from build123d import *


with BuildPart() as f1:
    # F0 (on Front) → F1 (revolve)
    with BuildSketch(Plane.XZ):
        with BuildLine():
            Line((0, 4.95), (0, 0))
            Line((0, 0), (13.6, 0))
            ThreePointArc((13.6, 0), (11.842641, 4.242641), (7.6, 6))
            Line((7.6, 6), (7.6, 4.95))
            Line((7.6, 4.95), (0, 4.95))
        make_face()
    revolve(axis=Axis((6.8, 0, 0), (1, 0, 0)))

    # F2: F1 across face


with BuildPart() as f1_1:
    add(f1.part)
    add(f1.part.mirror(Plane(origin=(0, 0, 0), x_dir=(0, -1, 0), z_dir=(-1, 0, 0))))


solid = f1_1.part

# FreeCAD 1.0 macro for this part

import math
import FreeCAD as App
import Part
import Sketcher

doc = App.newDocument("Part")
params = doc.addObject("Spreadsheet::Sheet", "Params")
for row, (alias, value) in enumerate([
    ("sketch1_radius", "5.999999 mm"),
    ("sketch1_width", "13.6 mm"),
    ("sketch1_width2", "7.6 mm"),
    ("sketch1_height", "4.95 mm"),
    ("revolution_angle", "360 deg"),
], start=1):
    params.set(f"A{row}", alias)
    params.set(f"B{row}", "=" + value)
    params.setAlias(f"B{row}", alias)

body = doc.addObject("PartDesign::Body", "Body")

sketch1 = body.newObject("Sketcher::SketchObject", "Sketch")
sketch1.AttachmentSupport = (doc.getObject("XZ_Plane"), [""])
sketch1.MapMode = "FlatFace"
sketch1.addGeometry([
    Part.LineSegment(App.Vector(0, 5, 0), App.Vector(0, 0, 0)),
    Part.LineSegment(App.Vector(0, 0, 0), App.Vector(13.6, 0, 0)),
    Part.ArcOfCircle(Part.Circle(App.Vector(7.6, 0, 0), App.Vector(0, 0, 1), 6), math.radians(0), math.radians(90)),
    Part.LineSegment(App.Vector(7.6, 6, 0), App.Vector(7.6, 5, 0)),
    Part.LineSegment(App.Vector(7.6, 5, 0), App.Vector(0, 5, 0)),
], False)
sketch1.addConstraint([
    Sketcher.Constraint("Coincident", 0, 2, 1, 1),
    Sketcher.Constraint("Coincident", 1, 2, 2, 1),
    Sketcher.Constraint("Coincident", 2, 2, 3, 1),
    Sketcher.Constraint("Coincident", 3, 2, 4, 1),
    Sketcher.Constraint("Coincident", 4, 2, 0, 1),
    Sketcher.Constraint("Vertical", 0),
    Sketcher.Constraint("Horizontal", 1),
    Sketcher.Constraint("Vertical", 3),
    Sketcher.Constraint("Horizontal", 4),
    Sketcher.Constraint("Coincident", 0, 2, -1, 1),
    Sketcher.Constraint("PointOnObject", 2, 3, -1),
    Sketcher.Constraint("Radius", 2, 5.999999),
    Sketcher.Constraint("DistanceX", 1, 1, 1, 2, 13.6),
    Sketcher.Constraint("DistanceX", 4, 2, 4, 1, 7.6),
    Sketcher.Constraint("DistanceY", 0, 2, 0, 1, 4.95),
])
sketch1.setExpression("Constraints[11]", "Params.sketch1_radius")
sketch1.setExpression("Constraints[12]", "Params.sketch1_width")
sketch1.setExpression("Constraints[13]", "Params.sketch1_width2")
sketch1.setExpression("Constraints[14]", "Params.sketch1_height")
revolution = body.newObject("PartDesign::Revolution", "Revolution")
revolution.Profile = sketch1
revolution.ReferenceAxis = (sketch1, ["H_Axis"])
revolution.setExpression("Angle", "Params.revolution_angle")
body2 = doc.addObject("PartDesign::Body", "Body001")
doc.recompute()

body2.BaseFeature = body
doc.recompute()

mirroring = doc.addObject("Part::Mirroring", "Mirroring")
mirroring.Source = body
mirroring.Base = App.Vector(0, 0, 0)
mirroring.Normal = App.Vector(-1, 0, 0)
body3 = doc.addObject("PartDesign::Body", "Body002")
body3.BaseFeature = mirroring
boolean = body2.newObject("PartDesign::Boolean", "Boolean")
boolean.Type = "Fuse"
boolean.addObjects([body3])
doc.recompute()
mirroring.Visibility = False

doc.recompute()
